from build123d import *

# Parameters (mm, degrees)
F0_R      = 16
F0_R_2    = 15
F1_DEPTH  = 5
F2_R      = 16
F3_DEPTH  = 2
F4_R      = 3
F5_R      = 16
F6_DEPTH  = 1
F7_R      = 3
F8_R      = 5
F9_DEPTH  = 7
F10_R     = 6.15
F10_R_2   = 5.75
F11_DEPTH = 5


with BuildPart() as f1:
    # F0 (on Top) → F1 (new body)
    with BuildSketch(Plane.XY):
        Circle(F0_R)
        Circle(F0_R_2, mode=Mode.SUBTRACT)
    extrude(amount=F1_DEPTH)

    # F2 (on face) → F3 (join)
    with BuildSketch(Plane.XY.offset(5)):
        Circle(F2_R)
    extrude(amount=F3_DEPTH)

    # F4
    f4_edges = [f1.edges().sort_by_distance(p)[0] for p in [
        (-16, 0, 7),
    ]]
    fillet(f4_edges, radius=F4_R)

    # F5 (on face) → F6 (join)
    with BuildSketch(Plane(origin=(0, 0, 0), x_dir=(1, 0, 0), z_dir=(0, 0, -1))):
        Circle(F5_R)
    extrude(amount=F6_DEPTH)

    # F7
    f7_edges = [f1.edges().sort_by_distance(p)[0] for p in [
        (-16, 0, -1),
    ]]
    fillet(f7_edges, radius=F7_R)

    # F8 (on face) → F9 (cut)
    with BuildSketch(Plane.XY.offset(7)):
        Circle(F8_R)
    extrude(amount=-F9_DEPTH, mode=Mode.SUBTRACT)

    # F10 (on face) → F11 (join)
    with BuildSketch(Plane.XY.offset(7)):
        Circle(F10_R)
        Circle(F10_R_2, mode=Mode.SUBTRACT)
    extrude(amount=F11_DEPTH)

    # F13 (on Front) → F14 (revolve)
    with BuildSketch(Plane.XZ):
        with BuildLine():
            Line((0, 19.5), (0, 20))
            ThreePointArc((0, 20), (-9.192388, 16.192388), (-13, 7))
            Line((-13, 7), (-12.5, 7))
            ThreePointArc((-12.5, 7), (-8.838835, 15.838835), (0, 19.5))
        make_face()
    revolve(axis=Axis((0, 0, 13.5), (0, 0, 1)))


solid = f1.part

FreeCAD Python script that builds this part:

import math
import FreeCAD as App
import Part
import Sketcher
from FreeCAD import Vector


def edges_at(feature, points):
    """Names of the edges that pass closest to the given points."""
    edges = feature.Shape.Edges
    near = lambda p: min(range(len(edges)), key=lambda i: edges[i].distToShape(Part.Vertex(*p))[0])
    return sorted({f"Edge{near(p) + 1}" for p in points})

doc = App.newDocument("Part")
body = doc.addObject("PartDesign::Body", "Body")

sketch1 = body.newObject("Sketcher::SketchObject", "Sketch")
sketch1.AttachmentSupport = (doc.getObject("XY_Plane"), [""])
sketch1.MapMode = "FlatFace"
sketch1.addGeometry([
    Part.Circle(Vector(0, 0, 0), Vector(0, 0, 1), 16),
    Part.Circle(Vector(0, 0, 0), Vector(0, 0, 1), 15),
], False)
sketch1.addConstraint([
    Sketcher.Constraint("Coincident", 0, 3, -1, 1),
    Sketcher.Constraint("Coincident", 1, 3, -1, 1),
    Sketcher.Constraint("Diameter", 0, 32.0),
    Sketcher.Constraint("Diameter", 1, 30.0),
])
pad1 = body.newObject("PartDesign::Pad", "Pad")
pad1.Profile = sketch1
pad1.Length = 5

sketch2 = body.newObject("Sketcher::SketchObject", "Sketch001")
sketch2.AttachmentSupport = (doc.getObject("XY_Plane"), [""])
sketch2.MapMode = "FlatFace"
sketch2.AttachmentOffset = App.Placement(Vector(0, 0, 5), App.Rotation())
sketch2.addGeometry(Part.Circle(Vector(0, 0, 0), Vector(0, 0, 1), 16), False)
sketch2.addConstraint([
    Sketcher.Constraint("Coincident", 0, 3, -1, 1),
    Sketcher.Constraint("Diameter", 0, 32.0),
])
pad2 = body.newObject("PartDesign::Pad", "Pad001")
pad2.Profile = sketch2
pad2.Length = 2
doc.recompute()

fillet = body.newObject("PartDesign::Fillet", "Fillet")
fillet.Base = (pad2, edges_at(pad2, [(-16, 0, 7)]))
fillet.Radius = 3

sketch3 = body.newObject("Sketcher::SketchObject", "Sketch002")
sketch3.AttachmentSupport = (doc.getObject("XY_Plane"), [""])
sketch3.MapMode = "FlatFace"
sketch3.addGeometry(Part.Circle(Vector(0, 0, 0), Vector(0, 0, 1), 16), False)
sketch3.addConstraint([
    Sketcher.Constraint("Coincident", 0, 3, -1, 1),
    Sketcher.Constraint("Diameter", 0, 32.0),
])
pad3 = body.newObject("PartDesign::Pad", "Pad002")
pad3.Profile = sketch3
pad3.Length = 1
pad3.Reversed = True
doc.recompute()

fillet2 = body.newObject("PartDesign::Fillet", "Fillet001")
fillet2.Base = (pad3, edges_at(pad3, [(-16, 0, -1)]))
fillet2.Radius = 3

sketch4 = body.newObject("Sketcher::SketchObject", "Sketch003")
sketch4.AttachmentSupport = (doc.getObject("XY_Plane"), [""])
sketch4.MapMode = "FlatFace"
sketch4.AttachmentOffset = App.Placement(Vector(0, 0, 7), App.Rotation())
sketch4.addGeometry(Part.Circle(Vector(0, 0, 0), Vector(0, 0, 1), 5), False)
sketch4.addConstraint([
    Sketcher.Constraint("Coincident", 0, 3, -1, 1),
    Sketcher.Constraint("Diameter", 0, 10.0),
])
pocket1 = body.newObject("PartDesign::Pocket", "Pocket")
pocket1.Profile = sketch4
pocket1.Length = 7

sketch5 = body.newObject("Sketcher::SketchObject", "Sketch004")
sketch5.AttachmentSupport = (doc.getObject("XY_Plane"), [""])
sketch5.MapMode = "FlatFace"
sketch5.AttachmentOffset = App.Placement(Vector(0, 0, 7), App.Rotation())
sketch5.addGeometry([
    Part.Circle(Vector(0, 0, 0), Vector(0, 0, 1), 6.15),
    Part.Circle(Vector(0, 0, 0), Vector(0, 0, 1), 5.75),
], False)
sketch5.addConstraint([
    Sketcher.Constraint("Coincident", 0, 3, -1, 1),
    Sketcher.Constraint("Coincident", 1, 3, -1, 1),
    Sketcher.Constraint("Diameter", 0, 12.3),
    Sketcher.Constraint("Diameter", 1, 11.5),
])
pad4 = body.newObject("PartDesign::Pad", "Pad003")
pad4.Profile = sketch5
pad4.Length = 5

sketch6 = body.newObject("Sketcher::SketchObject", "Sketch005")
sketch6.AttachmentSupport = (doc.getObject("XZ_Plane"), [""])
sketch6.MapMode = "FlatFace"
sketch6.addGeometry([
    Part.LineSegment(Vector(0, 19.5, 0), Vector(0, 20, 0)),
    Part.ArcOfCircle(Part.Circle(Vector(0.000001, 6.999999, 0), Vector(0, 0, 1), 13.000001), math.radians(90.000002), math.radians(179.999998)),
    Part.LineSegment(Vector(-13, 7, 0), Vector(-12.5, 7, 0)),
    Part.ArcOfCircle(Part.Circle(Vector(-0.000001, 7.000001, 0), Vector(0, 0, 1), 12.499999), math.radians(89.999996), math.radians(180.000004)),
], False)
sketch6.addConstraint([
    Sketcher.Constraint("Coincident", 0, 2, 1, 1),
    Sketcher.Constraint("Coincident", 1, 2, 2, 1),
    Sketcher.Constraint("Coincident", 2, 2, 3, 2),
    Sketcher.Constraint("Coincident", 3, 1, 0, 1),
    Sketcher.Constraint("Vertical", 0),
    Sketcher.Constraint("Horizontal", 2),
    Sketcher.Constraint("Coincident", 3, 3, 1, 3),
    Sketcher.Constraint("PointOnObject", 1, 3, -2),
    Sketcher.Constraint("PointOnObject", 0, 2, -2),
    Sketcher.Constraint("Horizontal", 3, 3, 1, 2),
    Sketcher.Constraint("Radius", 1, 13.000001),
    Sketcher.Constraint("Radius", 3, 12.499999),
    Sketcher.Constraint("DistanceY", -1, 1, 1, 3, 6.999999),
])
revolution = body.newObject("PartDesign::Revolution", "Revolution")
revolution.Profile = sketch6
revolution.ReferenceAxis = (sketch6, ["V_Axis"])
revolution.Angle = 360

doc.recompute()
